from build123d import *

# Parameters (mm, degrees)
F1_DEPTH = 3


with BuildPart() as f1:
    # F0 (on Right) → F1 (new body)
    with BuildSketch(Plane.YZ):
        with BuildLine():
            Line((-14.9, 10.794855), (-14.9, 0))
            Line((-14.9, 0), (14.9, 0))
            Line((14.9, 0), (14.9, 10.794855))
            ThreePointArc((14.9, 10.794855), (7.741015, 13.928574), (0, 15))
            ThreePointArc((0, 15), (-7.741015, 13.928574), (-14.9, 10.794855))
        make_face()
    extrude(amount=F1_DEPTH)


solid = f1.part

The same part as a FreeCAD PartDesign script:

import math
import FreeCAD as App
import Part
import Sketcher

doc = App.newDocument("Part")
body = doc.addObject("PartDesign::Body", "Body")

# Sketch on YZ plane
sketch1 = body.newObject("Sketcher::SketchObject", "Sketch")
sketch1.AttachmentSupport = (doc.getObject("YZ_Plane"), [""])
sketch1.MapMode = "FlatFace"
sketch1.addGeometry(Part.LineSegment(App.Vector(-15, 11, 0), App.Vector(-15, 0, 0)), False)
sketch1.addGeometry(Part.LineSegment(App.Vector(-15, 0, 0), App.Vector(15, 0, 0)), False)
sketch1.addGeometry(Part.LineSegment(App.Vector(15, 0, 0), App.Vector(15, 11, 0)), False)
sketch1.addGeometry(Part.ArcOfCircle(Part.Circle(App.Vector(0, -14, 0), App.Vector(0, 0, 1), 29), math.radians(58), math.radians(90)), False)
sketch1.addGeometry(Part.ArcOfCircle(Part.Circle(App.Vector(0, -14, 0), App.Vector(0, 0, 1), 29), math.radians(90), math.radians(122)), False)
sketch1.addConstraint(Sketcher.Constraint("Coincident", 0, 2, 1, 1))
sketch1.addConstraint(Sketcher.Constraint("Coincident", 1, 2, 2, 1))
sketch1.addConstraint(Sketcher.Constraint("Coincident", 2, 2, 3, 1))
sketch1.addConstraint(Sketcher.Constraint("Tangent", 3, 2, 4, 1))
sketch1.addConstraint(Sketcher.Constraint("Coincident", 4, 2, 0, 1))
sketch1.addConstraint(Sketcher.Constraint("Vertical", 0))
sketch1.addConstraint(Sketcher.Constraint("Horizontal", 1))
sketch1.addConstraint(Sketcher.Constraint("Vertical", 2))
sketch1.addConstraint(Sketcher.Constraint("Equal", 3, 4))
sketch1.addConstraint(Sketcher.Constraint("Symmetric", 0, 2, 1, 2, -1, 1))
sketch1.addConstraint(Sketcher.Constraint("PointOnObject", 3, 3, -2))
sketch1.addConstraint(Sketcher.Constraint("PointOnObject", 3, 2, -2))
sketch1.addConstraint(Sketcher.Constraint("Radius", 3, 28.500002))
sketch1.addConstraint(Sketcher.Constraint("DistanceX", 1, 1, 1, 2, 29.8))
sketch1.addConstraint(Sketcher.Constraint("DistanceY", -1, 1, 3, 2, 15.0))
pad1 = body.newObject("PartDesign::Pad", "Pad")
pad1.Profile = sketch1
pad1.Length = 3

doc.recompute()
